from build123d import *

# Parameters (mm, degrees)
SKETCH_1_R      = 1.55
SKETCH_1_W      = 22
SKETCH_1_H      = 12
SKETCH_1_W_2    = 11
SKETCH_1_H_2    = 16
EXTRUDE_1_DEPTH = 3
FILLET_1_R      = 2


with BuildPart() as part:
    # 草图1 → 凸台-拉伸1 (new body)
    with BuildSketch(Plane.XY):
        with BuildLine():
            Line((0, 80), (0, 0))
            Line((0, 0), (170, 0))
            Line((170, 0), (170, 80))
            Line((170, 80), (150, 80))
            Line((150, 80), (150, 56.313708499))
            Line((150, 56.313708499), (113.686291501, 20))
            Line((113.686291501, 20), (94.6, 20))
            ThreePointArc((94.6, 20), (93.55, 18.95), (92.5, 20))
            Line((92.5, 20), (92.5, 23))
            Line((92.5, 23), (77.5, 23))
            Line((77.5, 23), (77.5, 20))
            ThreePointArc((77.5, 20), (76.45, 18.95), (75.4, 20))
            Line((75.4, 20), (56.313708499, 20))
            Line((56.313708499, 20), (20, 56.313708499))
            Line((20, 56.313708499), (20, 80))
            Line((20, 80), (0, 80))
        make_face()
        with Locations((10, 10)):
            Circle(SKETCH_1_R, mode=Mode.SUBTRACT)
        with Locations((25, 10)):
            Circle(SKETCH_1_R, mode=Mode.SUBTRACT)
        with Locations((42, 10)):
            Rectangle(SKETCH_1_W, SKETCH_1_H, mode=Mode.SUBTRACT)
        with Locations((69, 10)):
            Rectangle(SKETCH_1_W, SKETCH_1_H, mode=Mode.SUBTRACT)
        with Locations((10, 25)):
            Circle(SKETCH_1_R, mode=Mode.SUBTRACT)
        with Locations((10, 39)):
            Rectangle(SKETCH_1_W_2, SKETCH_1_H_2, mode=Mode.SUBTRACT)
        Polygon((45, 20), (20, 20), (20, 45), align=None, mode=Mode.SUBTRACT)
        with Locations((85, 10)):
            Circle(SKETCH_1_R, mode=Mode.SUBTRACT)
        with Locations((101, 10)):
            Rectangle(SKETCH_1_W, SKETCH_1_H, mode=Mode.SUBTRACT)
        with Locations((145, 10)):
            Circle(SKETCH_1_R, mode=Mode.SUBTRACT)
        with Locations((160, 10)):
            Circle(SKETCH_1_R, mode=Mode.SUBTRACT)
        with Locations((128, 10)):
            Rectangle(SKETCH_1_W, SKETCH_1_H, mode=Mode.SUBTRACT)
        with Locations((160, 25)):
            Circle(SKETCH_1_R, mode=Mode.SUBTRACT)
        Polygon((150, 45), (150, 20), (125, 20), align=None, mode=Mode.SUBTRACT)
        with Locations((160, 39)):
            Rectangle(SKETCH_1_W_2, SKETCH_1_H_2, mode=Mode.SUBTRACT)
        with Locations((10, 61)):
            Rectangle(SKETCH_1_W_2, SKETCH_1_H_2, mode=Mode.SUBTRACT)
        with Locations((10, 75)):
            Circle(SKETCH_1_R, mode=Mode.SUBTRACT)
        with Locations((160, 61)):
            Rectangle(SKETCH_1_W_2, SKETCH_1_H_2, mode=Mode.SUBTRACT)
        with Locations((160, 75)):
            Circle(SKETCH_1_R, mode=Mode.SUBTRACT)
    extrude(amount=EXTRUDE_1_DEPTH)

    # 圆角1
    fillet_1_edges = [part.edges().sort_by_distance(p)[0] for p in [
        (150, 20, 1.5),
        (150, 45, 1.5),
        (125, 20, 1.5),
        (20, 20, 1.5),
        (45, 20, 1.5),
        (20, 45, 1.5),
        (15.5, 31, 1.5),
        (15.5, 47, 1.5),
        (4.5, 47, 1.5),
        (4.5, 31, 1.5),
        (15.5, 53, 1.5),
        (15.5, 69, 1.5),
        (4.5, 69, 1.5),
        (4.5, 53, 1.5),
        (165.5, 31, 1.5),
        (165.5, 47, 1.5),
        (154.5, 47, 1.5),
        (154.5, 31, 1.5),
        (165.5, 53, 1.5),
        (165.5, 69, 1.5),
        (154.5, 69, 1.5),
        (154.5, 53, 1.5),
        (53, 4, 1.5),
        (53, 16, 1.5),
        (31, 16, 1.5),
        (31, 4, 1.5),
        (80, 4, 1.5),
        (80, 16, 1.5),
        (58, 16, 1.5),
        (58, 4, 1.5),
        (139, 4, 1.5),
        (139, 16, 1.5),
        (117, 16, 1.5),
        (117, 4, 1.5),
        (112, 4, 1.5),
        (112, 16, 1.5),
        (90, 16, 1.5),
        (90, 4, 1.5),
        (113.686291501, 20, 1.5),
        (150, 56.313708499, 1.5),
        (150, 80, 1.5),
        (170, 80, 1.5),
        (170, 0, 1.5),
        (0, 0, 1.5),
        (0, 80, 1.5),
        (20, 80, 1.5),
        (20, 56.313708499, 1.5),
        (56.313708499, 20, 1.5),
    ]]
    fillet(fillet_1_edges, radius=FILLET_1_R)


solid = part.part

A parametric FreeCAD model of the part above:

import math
import FreeCAD as App
import Part
import Sketcher

V = App.Vector


def edges_at(feature, points):
    """Names of the edges that pass closest to the given points."""
    edges = feature.Shape.Edges
    near = lambda p: min(range(len(edges)), key=lambda i: edges[i].distToShape(Part.Vertex(*p))[0])
    return sorted({f"Edge{near(p) + 1}" for p in points})

doc = App.newDocument("Part")
body = doc.addObject("PartDesign::Body", "Body")

# Sketch on XY plane
sketch1 = body.newObject("Sketcher::SketchObject", "Sketch")
sketch1.AttachmentSupport = (doc.getObject("XY_Plane"), [""])
sketch1.MapMode = "FlatFace"
sketch1.addGeometry(Part.LineSegment(V(0, 80, 0), V(0, 0, 0)), False)
sketch1.addGeometry(Part.LineSegment(V(0, 0, 0), V(170, 0, 0)), False)
sketch1.addGeometry(Part.LineSegment(V(170, 0, 0), V(170, 80, 0)), False)
sketch1.addGeometry(Part.LineSegment(V(170, 80, 0), V(150, 80, 0)), False)
sketch1.addGeometry(Part.LineSegment(V(150, 80, 0), V(150, 56.313708, 0)), False)
sketch1.addGeometry(Part.LineSegment(V(150, 56.313708, 0), V(113.686292, 20, 0)), False)
sketch1.addGeometry(Part.LineSegment(V(113.686292, 20, 0), V(94.6, 20, 0)), False)
sketch1.addGeometry(Part.ArcOfCircle(Part.Circle(V(93.55, 20, 0), V(0, 0, 1), 1.05), math.radians(180), math.radians(360)), False)
sketch1.addGeometry(Part.LineSegment(V(92.5, 20, 0), V(92.5, 23, 0)), False)
sketch1.addGeometry(Part.LineSegment(V(92.5, 23, 0), V(77.5, 23, 0)), False)
sketch1.addGeometry(Part.LineSegment(V(77.5, 23, 0), V(77.5, 20, 0)), False)
sketch1.addGeometry(Part.ArcOfCircle(Part.Circle(V(76.45, 20, 0), V(0, 0, 1), 1.05), math.radians(180), math.radians(360)), False)
sketch1.addGeometry(Part.LineSegment(V(75.4, 20, 0), V(56.313708, 20, 0)), False)
sketch1.addGeometry(Part.LineSegment(V(56.313708, 20, 0), V(20, 56.313708, 0)), False)
sketch1.addGeometry(Part.LineSegment(V(20, 56.313708, 0), V(20, 80, 0)), False)
sketch1.addGeometry(Part.LineSegment(V(20, 80, 0), V(0, 80, 0)), False)
sketch1.addGeometry(Part.Circle(V(10, 10, 0), V(0, 0, 1), 1.55), False)
sketch1.addGeometry(Part.Circle(V(25, 10, 0), V(0, 0, 1), 1.55), False)
sketch1.addGeometry(Part.LineSegment(V(53, 4, 0), V(31, 4, 0)), False)
sketch1.addGeometry(Part.LineSegment(V(31, 4, 0), V(31, 16, 0)), False)
sketch1.addGeometry(Part.LineSegment(V(31, 16, 0), V(53, 16, 0)), False)
sketch1.addGeometry(Part.LineSegment(V(53, 16, 0), V(53, 4, 0)), False)
sketch1.addGeometry(Part.LineSegment(V(80, 4, 0), V(58, 4, 0)), False)
sketch1.addGeometry(Part.LineSegment(V(58, 4, 0), V(58, 16, 0)), False)
sketch1.addGeometry(Part.LineSegment(V(58, 16, 0), V(80, 16, 0)), False)
sketch1.addGeometry(Part.LineSegment(V(80, 16, 0), V(80, 4, 0)), False)
sketch1.addGeometry(Part.Circle(V(85, 10, 0), V(0, 0, 1), 1.55), False)
sketch1.addGeometry(Part.Circle(V(10, 25, 0), V(0, 0, 1), 1.55), False)
sketch1.addGeometry(Part.LineSegment(V(15.5, 31, 0), V(4.5, 31, 0)), False)
sketch1.addGeometry(Part.LineSegment(V(4.5, 31, 0), V(4.5, 47, 0)), False)
sketch1.addGeometry(Part.LineSegment(V(4.5, 47, 0), V(15.5, 47, 0)), False)
sketch1.addGeometry(Part.LineSegment(V(15.5, 47, 0), V(15.5, 31, 0)), False)
sketch1.addGeometry(Part.LineSegment(V(20, 45, 0), V(45, 20, 0)), False)
sketch1.addGeometry(Part.LineSegment(V(45, 20, 0), V(20, 20, 0)), False)
sketch1.addGeometry(Part.LineSegment(V(20, 20, 0), V(20, 45, 0)), False)
sketch1.addGeometry(Part.LineSegment(V(112, 4, 0), V(90, 4, 0)), False)
sketch1.addGeometry(Part.LineSegment(V(90, 4, 0), V(90, 16, 0)), False)
sketch1.addGeometry(Part.LineSegment(V(90, 16, 0), V(112, 16, 0)), False)
sketch1.addGeometry(Part.LineSegment(V(112, 16, 0), V(112, 4, 0)), False)
sketch1.addGeometry(Part.LineSegment(V(139, 4, 0), V(117, 4, 0)), False)
sketch1.addGeometry(Part.LineSegment(V(117, 4, 0), V(117, 16, 0)), False)
sketch1.addGeometry(Part.LineSegment(V(117, 16, 0), V(139, 16, 0)), False)
sketch1.addGeometry(Part.LineSegment(V(139, 16, 0), V(139, 4, 0)), False)
sketch1.addGeometry(Part.Circle(V(145, 10, 0), V(0, 0, 1), 1.55), False)
sketch1.addGeometry(Part.Circle(V(160, 10, 0), V(0, 0, 1), 1.55), False)
sketch1.addGeometry(Part.Circle(V(160, 25, 0), V(0, 0, 1), 1.55), False)
sketch1.addGeometry(Part.LineSegment(V(125, 20, 0), V(150, 45, 0)), False)
sketch1.addGeometry(Part.LineSegment(V(150, 45, 0), V(150, 20, 0)), False)
sketch1.addGeometry(Part.LineSegment(V(150, 20, 0), V(125, 20, 0)), False)
sketch1.addGeometry(Part.LineSegment(V(165.5, 31, 0), V(154.5, 31, 0)), False)
sketch1.addGeometry(Part.LineSegment(V(154.5, 31, 0), V(154.5, 47, 0)), False)
sketch1.addGeometry(Part.LineSegment(V(154.5, 47, 0), V(165.5, 47, 0)), False)
sketch1.addGeometry(Part.LineSegment(V(165.5, 47, 0), V(165.5, 31, 0)), False)
sketch1.addGeometry(Part.LineSegment(V(15.5, 53, 0), V(4.5, 53, 0)), False)
sketch1.addGeometry(Part.LineSegment(V(4.5, 53, 0), V(4.5, 69, 0)), False)
sketch1.addGeometry(Part.LineSegment(V(4.5, 69, 0), V(15.5, 69, 0)), False)
sketch1.addGeometry(Part.LineSegment(V(15.5, 69, 0), V(15.5, 53, 0)), False)
sketch1.addGeometry(Part.Circle(V(10, 75, 0), V(0, 0, 1), 1.55), False)
sketch1.addGeometry(Part.LineSegment(V(165.5, 53, 0), V(154.5, 53, 0)), False)
sketch1.addGeometry(Part.LineSegment(V(154.5, 53, 0), V(154.5, 69, 0)), False)
sketch1.addGeometry(Part.LineSegment(V(154.5, 69, 0), V(165.5, 69, 0)), False)
sketch1.addGeometry(Part.LineSegment(V(165.5, 69, 0), V(165.5, 53, 0)), False)
sketch1.addGeometry(Part.Circle(V(160, 75, 0), V(0, 0, 1), 1.55), False)
sketch1.addConstraint(Sketcher.Constraint("Coincident", 0, 2, 1, 1))
sketch1.addConstraint(Sketcher.Constraint("Coincident", 1, 2, 2, 1))
sketch1.addConstraint(Sketcher.Constraint("Coincident", 2, 2, 3, 1))
sketch1.addConstraint(Sketcher.Constraint("Coincident", 3, 2, 4, 1))
sketch1.addConstraint(Sketcher.Constraint("Coincident", 4, 2, 5, 1))
sketch1.addConstraint(Sketcher.Constraint("Coincident", 5, 2, 6, 1))
sketch1.addConstraint(Sketcher.Constraint("Coincident", 6, 2, 7, 2))
sketch1.addConstraint(Sketcher.Constraint("Tangent", 7, 1, 8, 1))
sketch1.addConstraint(Sketcher.Constraint("Coincident", 8, 2, 9, 1))
sketch1.addConstraint(Sketcher.Constraint("Coincident", 9, 2, 10, 1))
sketch1.addConstraint(Sketcher.Constraint("Tangent", 10, 2, 11, 2))
sketch1.addConstraint(Sketcher.Constraint("Coincident", 11, 1, 12, 1))
sketch1.addConstraint(Sketcher.Constraint("Coincident", 12, 2, 13, 1))
sketch1.addConstraint(Sketcher.Constraint("Coincident", 13, 2, 14, 1))
sketch1.addConstraint(Sketcher.Constraint("Coincident", 14, 2, 15, 1))
sketch1.addConstraint(Sketcher.Constraint("Coincident", 15, 2, 0, 1))
sketch1.addConstraint(Sketcher.Constraint("Coincident", 18, 2, 19, 1))
sketch1.addConstraint(Sketcher.Constraint("Coincident", 19, 2, 20, 1))
sketch1.addConstraint(Sketcher.Constraint("Coincident", 20, 2, 21, 1))
sketch1.addConstraint(Sketcher.Constraint("Coincident", 21, 2, 18, 1))
sketch1.addConstraint(Sketcher.Constraint("Coincident", 22, 2, 23, 1))
sketch1.addConstraint(Sketcher.Constraint("Coincident", 23, 2, 24, 1))
sketch1.addConstraint(Sketcher.Constraint("Coincident", 24, 2, 25, 1))
sketch1.addConstraint(Sketcher.Constraint("Coincident", 25, 2, 22, 1))
sketch1.addConstraint(Sketcher.Constraint("Coincident", 28, 2, 29, 1))
sketch1.addConstraint(Sketcher.Constraint("Coincident", 29, 2, 30, 1))
sketch1.addConstraint(Sketcher.Constraint("Coincident", 30, 2, 31, 1))
sketch1.addConstraint(Sketcher.Constraint("Coincident", 31, 2, 28, 1))
sketch1.addConstraint(Sketcher.Constraint("Coincident", 32, 2, 33, 1))
sketch1.addConstraint(Sketcher.Constraint("Coincident", 33, 2, 34, 1))
sketch1.addConstraint(Sketcher.Constraint("Coincident", 34, 2, 32, 1))
sketch1.addConstraint(Sketcher.Constraint("Coincident", 35, 2, 36, 1))
sketch1.addConstraint(Sketcher.Constraint("Coincident", 36, 2, 37, 1))
sketch1.addConstraint(Sketcher.Constraint("Coincident", 37, 2, 38, 1))
sketch1.addConstraint(Sketcher.Constraint("Coincident", 38, 2, 35, 1))
sketch1.addConstraint(Sketcher.Constraint("Coincident", 39, 2, 40, 1))
sketch1.addConstraint(Sketcher.Constraint("Coincident", 40, 2, 41, 1))
sketch1.addConstraint(Sketcher.Constraint("Coincident", 41, 2, 42, 1))
sketch1.addConstraint(Sketcher.Constraint("Coincident", 42, 2, 39, 1))
sketch1.addConstraint(Sketcher.Constraint("Coincident", 46, 2, 47, 1))
sketch1.addConstraint(Sketcher.Constraint("Coincident", 47, 2, 48, 1))
sketch1.addConstraint(Sketcher.Constraint("Coincident", 48, 2, 46, 1))
sketch1.addConstraint(Sketcher.Constraint("Coincident", 49, 2, 50, 1))
sketch1.addConstraint(Sketcher.Constraint("Coincident", 50, 2, 51, 1))
sketch1.addConstraint(Sketcher.Constraint("Coincident", 51, 2, 52, 1))
sketch1.addConstraint(Sketcher.Constraint("Coincident", 52, 2, 49, 1))
sketch1.addConstraint(Sketcher.Constraint("Coincident", 53, 2, 54, 1))
sketch1.addConstraint(Sketcher.Constraint("Coincident", 54, 2, 55, 1))
sketch1.addConstraint(Sketcher.Constraint("Coincident", 55, 2, 56, 1))
sketch1.addConstraint(Sketcher.Constraint("Coincident", 56, 2, 53, 1))
sketch1.addConstraint(Sketcher.Constraint("Coincident", 58, 2, 59, 1))
sketch1.addConstraint(Sketcher.Constraint("Coincident", 59, 2, 60, 1))
sketch1.addConstraint(Sketcher.Constraint("Coincident", 60, 2, 61, 1))
sketch1.addConstraint(Sketcher.Constraint("Coincident", 61, 2, 58, 1))
sketch1.addConstraint(Sketcher.Constraint("Vertical", 0))
sketch1.addConstraint(Sketcher.Constraint("Horizontal", 1))
sketch1.addConstraint(Sketcher.Constraint("Vertical", 2))
sketch1.addConstraint(Sketcher.Constraint("Horizontal", 3))
sketch1.addConstraint(Sketcher.Constraint("Vertical", 4))
sketch1.addConstraint(Sketcher.Constraint("Horizontal", 6))
sketch1.addConstraint(Sketcher.Constraint("Vertical", 8))
sketch1.addConstraint(Sketcher.Constraint("Horizontal", 9))
sketch1.addConstraint(Sketcher.Constraint("Vertical", 10))
sketch1.addConstraint(Sketcher.Constraint("Horizontal", 12))
sketch1.addConstraint(Sketcher.Constraint("Vertical", 14))
sketch1.addConstraint(Sketcher.Constraint("Horizontal", 15))
sketch1.addConstraint(Sketcher.Constraint("Horizontal", 18))
sketch1.addConstraint(Sketcher.Constraint("Vertical", 19))
sketch1.addConstraint(Sketcher.Constraint("Horizontal", 20))
sketch1.addConstraint(Sketcher.Constraint("Vertical", 21))
sketch1.addConstraint(Sketcher.Constraint("Horizontal", 22))
sketch1.addConstraint(Sketcher.Constraint("Vertical", 23))
sketch1.addConstraint(Sketcher.Constraint("Horizontal", 24))
sketch1.addConstraint(Sketcher.Constraint("Vertical", 25))
sketch1.addConstraint(Sketcher.Constraint("Horizontal", 28))
sketch1.addConstraint(Sketcher.Constraint("Vertical", 29))
sketch1.addConstraint(Sketcher.Constraint("Horizontal", 30))
sketch1.addConstraint(Sketcher.Constraint("Vertical", 31))
sketch1.addConstraint(Sketcher.Constraint("Horizontal", 33))
sketch1.addConstraint(Sketcher.Constraint("Vertical", 34))
sketch1.addConstraint(Sketcher.Constraint("Horizontal", 35))
sketch1.addConstraint(Sketcher.Constraint("Vertical", 36))
sketch1.addConstraint(Sketcher.Constraint("Horizontal", 37))
sketch1.addConstraint(Sketcher.Constraint("Vertical", 38))
sketch1.addConstraint(Sketcher.Constraint("Horizontal", 39))
sketch1.addConstraint(Sketcher.Constraint("Vertical", 40))
sketch1.addConstraint(Sketcher.Constraint("Horizontal", 41))
sketch1.addConstraint(Sketcher.Constraint("Vertical", 42))
sketch1.addConstraint(Sketcher.Constraint("Vertical", 47))
sketch1.addConstraint(Sketcher.Constraint("Horizontal", 48))
sketch1.addConstraint(Sketcher.Constraint("Horizontal", 49))
sketch1.addConstraint(Sketcher.Constraint("Vertical", 50))
sketch1.addConstraint(Sketcher.Constraint("Horizontal", 51))
sketch1.addConstraint(Sketcher.Constraint("Vertical", 52))
sketch1.addConstraint(Sketcher.Constraint("Horizontal", 53))
sketch1.addConstraint(Sketcher.Constraint("Vertical", 54))
sketch1.addConstraint(Sketcher.Constraint("Horizontal", 55))
sketch1.addConstraint(Sketcher.Constraint("Vertical", 56))
sketch1.addConstraint(Sketcher.Constraint("Horizontal", 58))
sketch1.addConstraint(Sketcher.Constraint("Vertical", 59))
sketch1.addConstraint(Sketcher.Constraint("Horizontal", 60))
sketch1.addConstraint(Sketcher.Constraint("Vertical", 61))
sketch1.addConstraint(Sketcher.Constraint("Coincident", 0, 2, -1, 1))
sketch1.addConstraint(Sketcher.Constraint("Equal", 7, 11))
sketch1.addConstraint(Sketcher.Constraint("Equal", 16, 17))
sketch1.addConstraint(Sketcher.Constraint("Equal", 17, 26))
sketch1.addConstraint(Sketcher.Constraint("Equal", 26, 27))
sketch1.addConstraint(Sketcher.Constraint("Equal", 27, 43))
sketch1.addConstraint(Sketcher.Constraint("Equal", 43, 44))
sketch1.addConstraint(Sketcher.Constraint("Equal", 44, 45))
sketch1.addConstraint(Sketcher.Constraint("Equal", 45, 57))
sketch1.addConstraint(Sketcher.Constraint("Equal", 57, 62))
sketch1.addConstraint(Sketcher.Constraint("Perpendicular", 5, 13))
sketch1.addConstraint(Sketcher.Constraint("Parallel", 13, 32))
sketch1.addConstraint(Sketcher.Constraint("Perpendicular", 32, 46))
sketch1.addConstraint(Sketcher.Constraint("Horizontal", 7, 3, 11, 3))
sketch1.addConstraint(Sketcher.Constraint("Horizontal", 16, 3, 17, 3))
sketch1.addConstraint(Sketcher.Constraint("Horizontal", 17, 3, 26, 3))
sketch1.addConstraint(Sketcher.Constraint("Horizontal", 26, 3, 43, 3))
sketch1.addConstraint(Sketcher.Constraint("Horizontal", 43, 3, 44, 3))
sketch1.addConstraint(Sketcher.Constraint("Horizontal", 27, 3, 45, 3))
sketch1.addConstraint(Sketcher.Constraint("Horizontal", 57, 3, 62, 3))
sketch1.addConstraint(Sketcher.Constraint("Horizontal", 11, 3, 5, 2))
sketch1.addConstraint(Sketcher.Constraint("Horizontal", 10, 2, 11, 1))
sketch1.addConstraint(Sketcher.Constraint("Horizontal", 4, 2, 13, 2))
sketch1.addConstraint(Sketcher.Constraint("Horizontal", 3, 2, 14, 2))
sketch1.addConstraint(Sketcher.Constraint("Horizontal", 21, 2, 22, 2))
sketch1.addConstraint(Sketcher.Constraint("Horizontal", 20, 2, 23, 2))
sketch1.addConstraint(Sketcher.Constraint("Horizontal", 12, 2, 32, 2))
sketch1.addConstraint(Sketcher.Constraint("Horizontal", 25, 2, 35, 2))
sketch1.addConstraint(Sketcher.Constraint("Horizontal", 24, 2, 36, 2))
sketch1.addConstraint(Sketcher.Constraint("Horizontal", 38, 2, 39, 2))
sketch1.addConstraint(Sketcher.Constraint("Horizontal", 37, 2, 40, 2))
sketch1.addConstraint(Sketcher.Constraint("Horizontal", 34, 2, 46, 2))
sketch1.addConstraint(Sketcher.Constraint("Horizontal", 33, 2, 47, 2))
sketch1.addConstraint(Sketcher.Constraint("Horizontal", 31, 2, 49, 2))
sketch1.addConstraint(Sketcher.Constraint("Horizontal", 30, 2, 50, 2))
sketch1.addConstraint(Sketcher.Constraint("Horizontal", 56, 2, 58, 2))
sketch1.addConstraint(Sketcher.Constraint("Horizontal", 55, 2, 59, 2))
sketch1.addConstraint(Sketcher.Constraint("Vertical", 16, 3, 27, 3))
sketch1.addConstraint(Sketcher.Constraint("Vertical", 44, 3, 45, 3))
sketch1.addConstraint(Sketcher.Constraint("Vertical", 27, 3, 57, 3))
sketch1.addConstraint(Sketcher.Constraint("Vertical", 45, 3, 62, 3))
sketch1.addConstraint(Sketcher.Constraint("Vertical", 14, 2, 33, 2))
sketch1.addConstraint(Sketcher.Constraint("Vertical", 4, 2, 46, 2))
sketch1.addConstraint(Sketcher.Constraint("Vertical", 29, 2, 53, 2))
sketch1.addConstraint(Sketcher.Constraint("Vertical", 31, 2, 55, 2))
sketch1.addConstraint(Sketcher.Constraint("Vertical", 50, 2, 58, 2))
sketch1.addConstraint(Sketcher.Constraint("Vertical", 52, 2, 60, 2))
sketch1.addConstraint(Sketcher.Constraint("Equal", 6, 12))
sketch1.addConstraint(Sketcher.Constraint("Equal", 3, 15))
sketch1.addConstraint(Sketcher.Constraint("Equal", 20, 22))
sketch1.addConstraint(Sketcher.Constraint("Equal", 24, 35))
sketch1.addConstraint(Sketcher.Constraint("Equal", 37, 39))
sketch1.addConstraint(Sketcher.Constraint("Equal", 33, 48))
sketch1.addConstraint(Sketcher.Constraint("Equal", 30, 49))
sketch1.addConstraint(Sketcher.Constraint("Equal", 52, 54))
sketch1.addConstraint(Sketcher.Constraint("Diameter", 16, 3.1))
sketch1.addConstraint(Sketcher.Constraint("DistanceX", 1, 1, 1, 2, 170.0))
sketch1.addConstraint(Sketcher.Constraint("DistanceX", 3, 2, 3, 1, 20.0))
sketch1.addConstraint(Sketcher.Constraint("DistanceX", 9, 2, 9, 1, 15.0))
sketch1.addConstraint(Sketcher.Constraint("DistanceX", 18, 2, 18, 1, 22.0))
sketch1.addConstraint(Sketcher.Constraint("DistanceX", 28, 2, 28, 1, 11.0))
sketch1.addConstraint(Sketcher.Constraint("DistanceX", 33, 2, 33, 1, 25.0))
sketch1.addConstraint(Sketcher.Constraint("DistanceY", 0, 2, 0, 1, 80.0))
sketch1.addConstraint(Sketcher.Constraint("DistanceY", 8, 1, 8, 2, 3.0))
sketch1.addConstraint(Sketcher.Constraint("DistanceY", 19, 1, 19, 2, 12.0))
sketch1.addConstraint(Sketcher.Constraint("DistanceY", 29, 1, 29, 2, 16.0))
sketch1.addConstraint(Sketcher.Constraint("Radius", 7, 1.05))
sketch1.addConstraint(Sketcher.Constraint("DistanceY", -1, 1, 7, 3, 20.0))
sketch1.addConstraint(Sketcher.Constraint("DistanceX", -1, 1, 16, 3, 10.0))
sketch1.addConstraint(Sketcher.Constraint("DistanceY", -1, 1, 16, 3, 10.0))
sketch1.addConstraint(Sketcher.Constraint("DistanceX", -1, 1, 17, 3, 25.0))
sketch1.addConstraint(Sketcher.Constraint("DistanceX", -1, 1, 26, 3, 85.0))
sketch1.addConstraint(Sketcher.Constraint("DistanceY", -1, 1, 27, 3, 25.0))
sketch1.addConstraint(Sketcher.Constraint("DistanceX", -1, 1, 43, 3, 145.0))
sketch1.addConstraint(Sketcher.Constraint("DistanceX", -1, 1, 44, 3, 160.0))
sketch1.addConstraint(Sketcher.Constraint("DistanceY", -1, 1, 57, 3, 75.0))
sketch1.addConstraint(Sketcher.Constraint("DistanceX", -1, 1, 18, 2, 31.0))
sketch1.addConstraint(Sketcher.Constraint("DistanceY", -1, 1, 18, 2, 4.0))
sketch1.addConstraint(Sketcher.Constraint("DistanceX", -1, 1, 22, 2, 58.0))
sketch1.addConstraint(Sketcher.Constraint("DistanceY", -1, 1, 28, 2, 31.0))
sketch1.addConstraint(Sketcher.Constraint("DistanceX", -1, 1, 35, 2, 90.0))
sketch1.addConstraint(Sketcher.Constraint("DistanceX", -1, 1, 39, 2, 117.0))
sketch1.addConstraint(Sketcher.Constraint("DistanceY", -1, 1, 53, 2, 53.0))
sketch1.addConstraint(Sketcher.Constraint("DistanceX", -1, 1, 28, 2, 4.5))
sketch1.addConstraint(Sketcher.Constraint("DistanceX", -1, 1, 49, 2, 154.5))
sketch1.addConstraint(Sketcher.Constraint("DistanceX", 6, 2, 6, 1, 19.086292))
pad1 = body.newObject("PartDesign::Pad", "Pad")
pad1.Profile = sketch1
pad1.Length = 3
doc.recompute()

fillet = body.newObject("PartDesign::Fillet", "Fillet")
fillet.Base = (pad1, edges_at(pad1, [
    (150, 20, 1.5),
    (150, 45, 1.5),
    (125, 20, 1.5),
    (20, 20, 1.5),
    (45, 20, 1.5),
    (20, 45, 1.5),
    (15.5, 31, 1.5),
    (15.5, 47, 1.5),
    (4.5, 47, 1.5),
    (4.5, 31, 1.5),
    (15.5, 53, 1.5),
    (15.5, 69, 1.5),
    (4.5, 69, 1.5),
    (4.5, 53, 1.5),
    (165.5, 31, 1.5),
    (165.5, 47, 1.5),
    (154.5, 47, 1.5),
    (154.5, 31, 1.5),
    (165.5, 53, 1.5),
    (165.5, 69, 1.5),
    (154.5, 69, 1.5),
    (154.5, 53, 1.5),
    (53, 4, 1.5),
    (53, 16, 1.5),
    (31, 16, 1.5),
    (31, 4, 1.5),
    (80, 4, 1.5),
    (80, 16, 1.5),
    (58, 16, 1.5),
    (58, 4, 1.5),
    (139, 4, 1.5),
    (139, 16, 1.5),
    (117, 16, 1.5),
    (117, 4, 1.5),
    (112, 4, 1.5),
    (112, 16, 1.5),
    (90, 16, 1.5),
    (90, 4, 1.5),
    (113.686, 20, 1.5),
    (150, 56.314, 1.5),
    (150, 80, 1.5),
    (170, 80, 1.5),
    (170, 0, 1.5),
    (0, 0, 1.5),
    (0, 80, 1.5),
    (20, 80, 1.5),
    (20, 56.314, 1.5),
    (56.314, 20, 1.5),
]))
fillet.Radius = 2

doc.recompute()
